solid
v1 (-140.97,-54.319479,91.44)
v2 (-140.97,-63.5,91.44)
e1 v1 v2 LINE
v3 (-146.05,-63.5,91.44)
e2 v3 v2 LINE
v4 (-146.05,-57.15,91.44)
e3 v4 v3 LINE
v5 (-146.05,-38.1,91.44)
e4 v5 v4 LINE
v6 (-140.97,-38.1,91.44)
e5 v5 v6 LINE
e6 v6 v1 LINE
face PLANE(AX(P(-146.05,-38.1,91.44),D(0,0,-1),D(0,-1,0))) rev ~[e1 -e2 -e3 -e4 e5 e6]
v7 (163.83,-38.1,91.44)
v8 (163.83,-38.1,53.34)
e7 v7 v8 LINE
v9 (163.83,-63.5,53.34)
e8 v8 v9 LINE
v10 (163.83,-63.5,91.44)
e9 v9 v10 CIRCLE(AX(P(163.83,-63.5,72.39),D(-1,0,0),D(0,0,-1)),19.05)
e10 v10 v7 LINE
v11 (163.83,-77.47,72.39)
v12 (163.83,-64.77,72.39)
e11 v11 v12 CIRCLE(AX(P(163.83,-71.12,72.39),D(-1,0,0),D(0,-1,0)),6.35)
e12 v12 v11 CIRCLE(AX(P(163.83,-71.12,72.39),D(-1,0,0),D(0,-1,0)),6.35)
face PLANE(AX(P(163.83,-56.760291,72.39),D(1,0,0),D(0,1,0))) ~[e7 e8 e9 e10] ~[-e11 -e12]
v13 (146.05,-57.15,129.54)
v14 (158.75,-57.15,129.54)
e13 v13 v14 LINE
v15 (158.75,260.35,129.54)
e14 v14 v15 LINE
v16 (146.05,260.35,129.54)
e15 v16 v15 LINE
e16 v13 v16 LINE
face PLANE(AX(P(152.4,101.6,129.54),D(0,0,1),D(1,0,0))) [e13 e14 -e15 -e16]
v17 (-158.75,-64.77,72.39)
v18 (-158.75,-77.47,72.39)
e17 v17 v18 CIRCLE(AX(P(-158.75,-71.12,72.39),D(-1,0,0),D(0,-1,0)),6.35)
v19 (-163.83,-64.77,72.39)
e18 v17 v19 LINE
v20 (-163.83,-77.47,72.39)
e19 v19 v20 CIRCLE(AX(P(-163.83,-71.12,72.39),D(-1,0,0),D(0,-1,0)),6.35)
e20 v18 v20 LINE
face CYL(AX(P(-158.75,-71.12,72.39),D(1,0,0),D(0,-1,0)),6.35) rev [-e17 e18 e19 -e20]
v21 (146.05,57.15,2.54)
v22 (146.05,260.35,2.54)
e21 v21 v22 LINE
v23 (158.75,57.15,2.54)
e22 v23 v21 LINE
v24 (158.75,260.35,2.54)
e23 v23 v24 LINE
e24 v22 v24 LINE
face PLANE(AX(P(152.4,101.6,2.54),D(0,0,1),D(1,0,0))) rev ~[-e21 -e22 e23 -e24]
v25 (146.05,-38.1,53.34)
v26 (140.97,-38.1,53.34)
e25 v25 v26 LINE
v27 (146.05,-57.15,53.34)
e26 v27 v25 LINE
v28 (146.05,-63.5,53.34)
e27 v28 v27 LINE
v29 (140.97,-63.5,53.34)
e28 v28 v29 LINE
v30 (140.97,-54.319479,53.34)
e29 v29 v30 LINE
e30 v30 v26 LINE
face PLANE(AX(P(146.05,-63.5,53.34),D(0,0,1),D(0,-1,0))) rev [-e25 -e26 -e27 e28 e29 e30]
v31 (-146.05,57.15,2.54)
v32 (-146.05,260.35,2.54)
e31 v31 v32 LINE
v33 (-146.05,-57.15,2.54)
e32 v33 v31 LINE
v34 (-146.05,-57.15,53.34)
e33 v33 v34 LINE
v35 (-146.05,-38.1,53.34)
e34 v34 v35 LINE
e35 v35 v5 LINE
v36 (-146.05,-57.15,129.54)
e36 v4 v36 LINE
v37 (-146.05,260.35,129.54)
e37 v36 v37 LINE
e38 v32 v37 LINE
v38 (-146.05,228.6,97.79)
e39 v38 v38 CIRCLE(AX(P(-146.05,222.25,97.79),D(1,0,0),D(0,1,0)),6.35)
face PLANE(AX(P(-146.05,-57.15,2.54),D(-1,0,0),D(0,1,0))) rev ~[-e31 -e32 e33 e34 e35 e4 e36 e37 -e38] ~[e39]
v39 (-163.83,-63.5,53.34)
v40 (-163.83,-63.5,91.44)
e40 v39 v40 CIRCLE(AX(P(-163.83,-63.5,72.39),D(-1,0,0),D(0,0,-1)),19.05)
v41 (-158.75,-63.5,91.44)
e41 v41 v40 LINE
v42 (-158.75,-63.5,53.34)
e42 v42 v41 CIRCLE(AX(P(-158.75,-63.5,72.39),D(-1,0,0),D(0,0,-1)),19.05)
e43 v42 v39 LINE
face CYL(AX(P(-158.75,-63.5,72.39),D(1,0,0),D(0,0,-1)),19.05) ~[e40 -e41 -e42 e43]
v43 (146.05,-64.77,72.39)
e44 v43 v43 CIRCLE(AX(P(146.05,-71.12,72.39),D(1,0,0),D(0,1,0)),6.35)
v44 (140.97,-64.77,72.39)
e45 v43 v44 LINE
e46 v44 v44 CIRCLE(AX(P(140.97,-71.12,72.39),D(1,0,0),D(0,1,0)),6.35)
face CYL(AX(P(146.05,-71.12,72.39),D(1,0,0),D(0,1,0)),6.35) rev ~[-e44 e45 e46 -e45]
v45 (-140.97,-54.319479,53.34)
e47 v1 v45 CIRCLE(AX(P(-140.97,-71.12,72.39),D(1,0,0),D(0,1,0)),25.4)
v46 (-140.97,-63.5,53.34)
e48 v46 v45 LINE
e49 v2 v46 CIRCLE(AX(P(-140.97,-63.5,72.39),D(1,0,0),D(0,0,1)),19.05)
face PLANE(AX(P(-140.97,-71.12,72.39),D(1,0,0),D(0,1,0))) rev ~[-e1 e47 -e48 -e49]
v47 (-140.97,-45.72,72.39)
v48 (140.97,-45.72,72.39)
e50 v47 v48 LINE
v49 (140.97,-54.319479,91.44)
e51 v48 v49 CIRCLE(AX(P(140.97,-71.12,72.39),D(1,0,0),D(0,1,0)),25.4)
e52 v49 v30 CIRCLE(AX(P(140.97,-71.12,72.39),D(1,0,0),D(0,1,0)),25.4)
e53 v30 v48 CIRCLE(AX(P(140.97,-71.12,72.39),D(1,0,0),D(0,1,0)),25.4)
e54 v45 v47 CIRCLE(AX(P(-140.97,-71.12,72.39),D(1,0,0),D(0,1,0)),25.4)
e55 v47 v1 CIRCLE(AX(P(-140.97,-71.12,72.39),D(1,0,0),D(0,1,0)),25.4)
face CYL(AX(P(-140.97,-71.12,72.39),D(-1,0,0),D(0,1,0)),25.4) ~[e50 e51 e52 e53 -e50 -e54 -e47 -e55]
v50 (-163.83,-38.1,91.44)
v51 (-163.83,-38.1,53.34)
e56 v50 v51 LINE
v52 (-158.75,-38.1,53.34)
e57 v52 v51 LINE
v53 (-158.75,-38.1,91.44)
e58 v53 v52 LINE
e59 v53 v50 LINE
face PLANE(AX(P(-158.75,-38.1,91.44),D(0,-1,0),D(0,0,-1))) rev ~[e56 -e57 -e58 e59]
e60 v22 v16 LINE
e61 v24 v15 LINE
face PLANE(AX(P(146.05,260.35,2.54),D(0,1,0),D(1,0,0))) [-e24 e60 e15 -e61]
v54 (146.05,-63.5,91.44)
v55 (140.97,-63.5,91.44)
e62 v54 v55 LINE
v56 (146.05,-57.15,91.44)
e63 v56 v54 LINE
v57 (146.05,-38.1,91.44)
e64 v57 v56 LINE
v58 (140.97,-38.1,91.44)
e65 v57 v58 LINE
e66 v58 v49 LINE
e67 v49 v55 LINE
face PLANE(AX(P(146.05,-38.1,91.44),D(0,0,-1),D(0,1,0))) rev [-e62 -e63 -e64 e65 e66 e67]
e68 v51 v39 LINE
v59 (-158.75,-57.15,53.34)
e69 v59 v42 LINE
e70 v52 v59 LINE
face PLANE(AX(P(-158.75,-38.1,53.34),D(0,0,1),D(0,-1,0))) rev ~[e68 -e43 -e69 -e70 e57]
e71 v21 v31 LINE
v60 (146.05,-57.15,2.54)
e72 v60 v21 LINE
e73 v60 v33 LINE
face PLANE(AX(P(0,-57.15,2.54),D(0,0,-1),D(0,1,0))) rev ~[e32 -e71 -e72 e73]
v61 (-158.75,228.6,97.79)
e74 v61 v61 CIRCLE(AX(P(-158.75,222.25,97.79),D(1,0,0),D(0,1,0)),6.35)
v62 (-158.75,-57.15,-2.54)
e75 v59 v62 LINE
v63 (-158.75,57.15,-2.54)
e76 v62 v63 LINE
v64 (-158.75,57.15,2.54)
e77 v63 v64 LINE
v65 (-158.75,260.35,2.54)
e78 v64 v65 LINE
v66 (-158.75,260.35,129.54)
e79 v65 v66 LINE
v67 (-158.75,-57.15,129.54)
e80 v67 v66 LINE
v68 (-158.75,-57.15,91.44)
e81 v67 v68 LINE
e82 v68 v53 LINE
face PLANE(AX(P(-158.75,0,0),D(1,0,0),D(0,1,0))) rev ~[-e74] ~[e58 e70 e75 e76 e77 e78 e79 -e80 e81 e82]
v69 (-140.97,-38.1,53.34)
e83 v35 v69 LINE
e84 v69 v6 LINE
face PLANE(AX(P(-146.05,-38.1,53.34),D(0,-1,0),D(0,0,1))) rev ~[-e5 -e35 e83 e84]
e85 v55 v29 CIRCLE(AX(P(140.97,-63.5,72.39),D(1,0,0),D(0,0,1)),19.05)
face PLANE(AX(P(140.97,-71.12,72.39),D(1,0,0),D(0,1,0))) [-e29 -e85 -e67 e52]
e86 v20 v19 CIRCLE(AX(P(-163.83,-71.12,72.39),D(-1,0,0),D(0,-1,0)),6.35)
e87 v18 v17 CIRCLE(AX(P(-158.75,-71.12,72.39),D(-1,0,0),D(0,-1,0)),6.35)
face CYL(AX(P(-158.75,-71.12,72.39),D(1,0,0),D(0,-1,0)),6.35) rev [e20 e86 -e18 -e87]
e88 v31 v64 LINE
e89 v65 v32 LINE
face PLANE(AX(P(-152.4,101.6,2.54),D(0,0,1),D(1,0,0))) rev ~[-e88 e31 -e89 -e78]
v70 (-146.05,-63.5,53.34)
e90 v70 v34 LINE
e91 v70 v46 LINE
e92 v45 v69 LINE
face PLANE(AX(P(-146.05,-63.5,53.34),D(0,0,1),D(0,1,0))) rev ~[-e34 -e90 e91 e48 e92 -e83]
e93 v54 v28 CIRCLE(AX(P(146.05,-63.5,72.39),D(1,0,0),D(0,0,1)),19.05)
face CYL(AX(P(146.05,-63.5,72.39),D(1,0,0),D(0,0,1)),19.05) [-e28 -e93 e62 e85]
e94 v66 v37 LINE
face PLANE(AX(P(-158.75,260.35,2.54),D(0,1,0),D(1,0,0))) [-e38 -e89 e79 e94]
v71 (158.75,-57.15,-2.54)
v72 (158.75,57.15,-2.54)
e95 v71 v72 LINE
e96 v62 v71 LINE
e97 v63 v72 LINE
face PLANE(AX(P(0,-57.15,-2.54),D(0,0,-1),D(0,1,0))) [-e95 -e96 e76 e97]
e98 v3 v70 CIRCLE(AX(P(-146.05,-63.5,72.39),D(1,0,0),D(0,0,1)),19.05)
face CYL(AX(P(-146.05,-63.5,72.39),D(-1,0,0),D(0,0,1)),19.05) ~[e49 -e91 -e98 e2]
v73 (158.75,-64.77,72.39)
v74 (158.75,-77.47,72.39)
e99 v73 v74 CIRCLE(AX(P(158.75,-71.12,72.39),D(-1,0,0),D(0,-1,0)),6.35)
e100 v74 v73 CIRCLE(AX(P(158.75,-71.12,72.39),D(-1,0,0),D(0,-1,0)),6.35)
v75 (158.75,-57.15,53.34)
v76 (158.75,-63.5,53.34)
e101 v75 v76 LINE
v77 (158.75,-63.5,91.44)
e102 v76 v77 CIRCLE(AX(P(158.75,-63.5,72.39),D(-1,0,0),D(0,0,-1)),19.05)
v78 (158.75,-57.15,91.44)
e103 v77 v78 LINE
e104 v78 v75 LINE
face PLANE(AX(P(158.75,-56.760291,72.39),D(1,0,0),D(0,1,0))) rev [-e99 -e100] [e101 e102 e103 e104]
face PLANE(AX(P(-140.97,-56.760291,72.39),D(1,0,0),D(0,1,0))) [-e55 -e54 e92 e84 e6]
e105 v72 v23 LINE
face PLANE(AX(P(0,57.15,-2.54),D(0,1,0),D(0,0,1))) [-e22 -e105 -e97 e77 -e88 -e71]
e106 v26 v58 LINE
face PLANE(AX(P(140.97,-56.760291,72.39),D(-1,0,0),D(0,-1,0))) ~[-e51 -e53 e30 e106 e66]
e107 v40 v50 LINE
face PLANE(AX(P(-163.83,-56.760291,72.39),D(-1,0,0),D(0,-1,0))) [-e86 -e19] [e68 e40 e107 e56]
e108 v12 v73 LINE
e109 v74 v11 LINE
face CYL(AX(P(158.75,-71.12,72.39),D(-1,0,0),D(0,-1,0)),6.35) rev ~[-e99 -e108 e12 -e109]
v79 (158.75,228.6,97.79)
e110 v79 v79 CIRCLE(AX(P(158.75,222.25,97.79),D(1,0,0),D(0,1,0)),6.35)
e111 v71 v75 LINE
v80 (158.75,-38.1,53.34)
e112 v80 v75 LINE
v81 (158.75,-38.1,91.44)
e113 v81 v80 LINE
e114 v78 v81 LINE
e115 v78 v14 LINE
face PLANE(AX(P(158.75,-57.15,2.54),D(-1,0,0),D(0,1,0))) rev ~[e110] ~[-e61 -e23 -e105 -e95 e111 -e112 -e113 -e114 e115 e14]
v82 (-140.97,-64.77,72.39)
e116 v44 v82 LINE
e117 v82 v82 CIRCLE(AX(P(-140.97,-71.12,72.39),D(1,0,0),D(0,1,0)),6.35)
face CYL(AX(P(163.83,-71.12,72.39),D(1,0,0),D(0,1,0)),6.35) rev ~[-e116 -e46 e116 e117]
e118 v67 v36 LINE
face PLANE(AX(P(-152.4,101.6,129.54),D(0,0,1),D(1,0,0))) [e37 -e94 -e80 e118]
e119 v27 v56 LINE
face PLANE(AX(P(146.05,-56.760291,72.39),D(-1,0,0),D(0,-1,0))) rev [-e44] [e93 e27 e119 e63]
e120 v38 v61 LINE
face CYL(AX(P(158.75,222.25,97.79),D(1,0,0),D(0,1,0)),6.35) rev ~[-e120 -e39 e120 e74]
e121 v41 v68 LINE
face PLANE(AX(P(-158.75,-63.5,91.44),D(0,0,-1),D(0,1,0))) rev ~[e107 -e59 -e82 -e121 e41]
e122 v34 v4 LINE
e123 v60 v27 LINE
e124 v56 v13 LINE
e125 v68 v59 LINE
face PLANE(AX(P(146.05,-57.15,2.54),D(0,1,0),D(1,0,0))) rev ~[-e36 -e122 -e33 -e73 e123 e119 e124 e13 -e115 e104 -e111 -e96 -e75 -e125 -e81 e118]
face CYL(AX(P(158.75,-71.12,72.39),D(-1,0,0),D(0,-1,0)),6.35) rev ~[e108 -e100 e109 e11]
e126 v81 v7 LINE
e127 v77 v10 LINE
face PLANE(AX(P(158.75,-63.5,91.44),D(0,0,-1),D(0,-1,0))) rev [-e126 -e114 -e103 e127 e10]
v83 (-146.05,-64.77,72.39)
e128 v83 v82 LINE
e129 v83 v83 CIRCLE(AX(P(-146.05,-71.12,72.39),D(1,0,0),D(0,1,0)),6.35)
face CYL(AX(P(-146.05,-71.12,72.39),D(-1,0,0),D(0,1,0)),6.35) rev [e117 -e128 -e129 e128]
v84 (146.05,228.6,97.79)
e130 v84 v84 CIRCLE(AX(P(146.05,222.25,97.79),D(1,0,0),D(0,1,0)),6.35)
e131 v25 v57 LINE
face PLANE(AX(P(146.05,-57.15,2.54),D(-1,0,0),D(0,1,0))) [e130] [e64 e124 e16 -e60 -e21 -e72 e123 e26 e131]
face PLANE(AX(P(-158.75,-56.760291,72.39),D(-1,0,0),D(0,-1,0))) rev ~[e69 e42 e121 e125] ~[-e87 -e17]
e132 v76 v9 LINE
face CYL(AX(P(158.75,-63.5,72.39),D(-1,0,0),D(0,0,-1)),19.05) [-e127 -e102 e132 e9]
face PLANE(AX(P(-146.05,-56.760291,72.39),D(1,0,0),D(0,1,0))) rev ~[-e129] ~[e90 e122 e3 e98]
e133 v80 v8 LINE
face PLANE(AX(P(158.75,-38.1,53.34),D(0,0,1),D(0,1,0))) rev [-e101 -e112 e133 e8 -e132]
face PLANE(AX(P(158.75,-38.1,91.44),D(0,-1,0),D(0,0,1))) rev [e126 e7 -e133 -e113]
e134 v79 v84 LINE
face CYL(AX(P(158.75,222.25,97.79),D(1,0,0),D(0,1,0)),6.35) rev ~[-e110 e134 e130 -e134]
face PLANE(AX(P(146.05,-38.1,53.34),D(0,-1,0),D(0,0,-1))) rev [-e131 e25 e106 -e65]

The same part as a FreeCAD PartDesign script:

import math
import FreeCAD as App
import Part
import Sketcher
from FreeCAD import Vector
Q = App.Units.Quantity


def add_polygon(sketch, points):
    """Adds a closed chain of lines whose ends are joined by coincident constraints."""
    first, n = sketch.GeometryCount, len(points)
    for a, b in zip(points, points[1:] + points[:1]):
        sketch.addGeometry(Part.LineSegment(App.Vector(*a, 0), App.Vector(*b, 0)), False)
    for i in range(n):
        sketch.addConstraint(Sketcher.Constraint("Coincident", first + i, 2, first + (i + 1) % n, 1))

doc = App.newDocument("Part")
body = doc.addObject("PartDesign::Body", "Body")

# Sketch on YZ plane
sketch1 = doc.addObject("Sketcher::SketchObject", "Sketch")
body.addObject(sketch1)
sketch1.AttachmentSupport = (doc.YZ_Plane, [""])
sketch1.MapMode = "FlatFace"
add_polygon(sketch1, [(-57, 3), (-57, -3), (57, -3), (57, 3)])  # lines 0-3
sketch1.addConstraint([
    Sketcher.Constraint("Vertical", 0),
    Sketcher.Constraint("Horizontal", 1),
    Sketcher.Constraint("Vertical", 2),
    Sketcher.Constraint("Horizontal", 3),
    Sketcher.Constraint("Symmetric", 0, 2, 2, 2, -1, 1),
    Sketcher.Constraint("DistanceX", 1, 1, 1, 2, Q("4.5 in")),
    Sketcher.Constraint("DistanceY", 0, 2, 0, 1, Q("0.2 in")),
])
pad1 = doc.addObject("PartDesign::Pad", "Pad")
body.addObject(pad1)
pad1.Profile = sketch1
pad1.Length = Q("12.5 in")
pad1.Midplane = True

# Sketch on XY plane
sketch2 = doc.addObject("Sketcher::SketchObject", "Sketch001")
body.addObject(sketch2)
sketch2.AttachmentSupport = (doc.XY_Plane, [""])
sketch2.MapMode = "FlatFace"
sketch2.AttachmentOffset = App.Placement(Vector(0, 0, 0.1 * 25.4), App.Rotation())
add_polygon(sketch2, [(146, 260), (146, -57), (159, -57), (159, 260)])  # lines 0-3
add_polygon(sketch2, [(-159, 260), (-159, -57), (-146, -57), (-146, 260)])  # lines 4-7
sketch2.addConstraint([
    Sketcher.Constraint("Vertical", 0),
    Sketcher.Constraint("Horizontal", 1),
    Sketcher.Constraint("Vertical", 2),
    Sketcher.Constraint("Horizontal", 3),
    Sketcher.Constraint("Vertical", 4),
    Sketcher.Constraint("Horizontal", 5),
    Sketcher.Constraint("Vertical", 6),
    Sketcher.Constraint("Horizontal", 7),
    Sketcher.Constraint("Symmetric", 1, 2, 4, 2, -2),
    Sketcher.Constraint("Symmetric", 3, 2, 6, 2, -2),
    Sketcher.Constraint("DistanceX", 1, 1, 1, 2, Q("0.5 in")),
    Sketcher.Constraint("DistanceY", 0, 2, 0, 1, Q("12.5 in")),
    Sketcher.Constraint("DistanceX", 4, 2, 0, 2, Q("12 in")),
    Sketcher.Constraint("DistanceY", 0, 2, -1, 1, Q("2.25 in")),
])
pad2 = doc.addObject("PartDesign::Pad", "Pad001")
body.addObject(pad2)
pad2.Profile = sketch2
pad2.Length = Q("5 in")

# Sketch on YZ plane
sketch3 = doc.addObject("Sketcher::SketchObject", "Sketch002")
body.addObject(sketch3)
sketch3.AttachmentSupport = (doc.YZ_Plane, [""])
sketch3.MapMode = "FlatFace"
sketch3.AttachmentOffset = App.Placement(Vector(0, 0, -5.75 * 25.4), App.Rotation())
sketch3.addGeometry([
    Part.LineSegment(Vector(-38, 91, 0), Vector(-64, 91, 0)),  # 0
    Part.ArcOfCircle(Part.Circle(Vector(-64, 72, 0), Vector(0, 0, 1), 19), math.radians(90), math.radians(270)),  # 1
    Part.LineSegment(Vector(-64, 53, 0), Vector(-38, 53, 0)),  # 2
    Part.LineSegment(Vector(-38, 53, 0), Vector(-38, 91, 0)),  # 3
    Part.Circle(Vector(-71, 72, 0), Vector(0, 0, 1), 6),  # 4
], False)
sketch3.addConstraint([
    Sketcher.Constraint("Tangent", 0, 2, 1, 1),
    Sketcher.Constraint("Tangent", 1, 2, 2, 1),
    Sketcher.Constraint("Coincident", 2, 2, 3, 1),
    Sketcher.Constraint("Coincident", 3, 2, 0, 1),
    Sketcher.Constraint("Horizontal", 0),
    Sketcher.Constraint("Horizontal", 2),
    Sketcher.Constraint("Vertical", 3),
    Sketcher.Constraint("Horizontal", 1, 3, 4, 3),
    Sketcher.Constraint("Diameter", 4, Q("0.5 in")),
    Sketcher.Constraint("DistanceX", 0, 2, 0, 1, Q("1 in")),
    Sketcher.Constraint("Radius", 1, Q("0.75 in")),
    Sketcher.Constraint("DistanceX", 1, 3, -1, 1, Q("2.5 in")),
    Sketcher.Constraint("DistanceX", 4, 3, -1, 1, Q("2.8 in")),
    Sketcher.Constraint("DistanceY", -1, 1, 0, 2, Q("3.6 in")),
])
pad3 = doc.addObject("PartDesign::Pad", "Pad002")
body.addObject(pad3)
pad3.Profile = sketch3
pad3.Length = Q("0.2 in")

# Sketch on YZ plane
sketch4 = doc.addObject("Sketcher::SketchObject", "Sketch003")
body.addObject(sketch4)
sketch4.AttachmentSupport = (doc.YZ_Plane, [""])
sketch4.MapMode = "FlatFace"
sketch4.AttachmentOffset = App.Placement(Vector(0, 0, -6.25 * 25.4), App.Rotation())
sketch4.addGeometry([
    Part.LineSegment(Vector(-64, 91, 0), Vector(-38, 91, 0)),  # 0
    Part.LineSegment(Vector(-38, 91, 0), Vector(-38, 53, 0)),  # 1
    Part.LineSegment(Vector(-38, 53, 0), Vector(-64, 53, 0)),  # 2
    Part.ArcOfCircle(Part.Circle(Vector(-64, 72, 0), Vector(0, 0, 1), 19), math.radians(90), math.radians(270)),  # 3
    Part.Circle(Vector(-71, 72, 0), Vector(0, 0, 1), 6),  # 4
], False)
sketch4.addConstraint([
    Sketcher.Constraint("Coincident", 0, 2, 1, 1),
    Sketcher.Constraint("Coincident", 1, 2, 2, 1),
    Sketcher.Constraint("Tangent", 2, 2, 3, 2),
    Sketcher.Constraint("Tangent", 3, 1, 0, 1),
    Sketcher.Constraint("Horizontal", 0),
    Sketcher.Constraint("Vertical", 1),
    Sketcher.Constraint("Horizontal", 2),
    Sketcher.Constraint("Horizontal", 3, 3, 4, 3),
    Sketcher.Constraint("Diameter", 4, Q("0.5 in")),
    Sketcher.Constraint("DistanceX", 0, 1, 0, 2, Q("1 in")),
    Sketcher.Constraint("Radius", 3, Q("0.75 in")),
    Sketcher.Constraint("DistanceX", 3, 3, -1, 1, Q("2.5 in")),
    Sketcher.Constraint("DistanceX", 4, 3, -1, 1, Q("2.8 in")),
    Sketcher.Constraint("DistanceY", -1, 1, 0, 2, Q("3.6 in")),
])
pad4 = doc.addObject("PartDesign::Pad", "Pad003")
body.addObject(pad4)
pad4.Profile = sketch4
pad4.Length = Q("0.2 in")
pad4.Reversed = True
body2 = doc.addObject("PartDesign::Body", "Body001")
doc.recompute()

body2.BaseFeature = body
doc.recompute()

mirroring = doc.addObject("Part::Mirroring", "Mirroring")
mirroring.Source = body
mirroring.Base = Vector(0, 0, 0)
mirroring.Normal = Vector(1, 0, 0)
body3 = doc.addObject("PartDesign::Body", "Body002")
body3.BaseFeature = mirroring
boolean = doc.addObject("PartDesign::Boolean", "Boolean")
body2.addObject(boolean)
boolean.Type = "Fuse"
boolean.addObjects([body3])
doc.recompute()

# Sketch on YZ plane
sketch5 = doc.addObject("Sketcher::SketchObject", "Sketch004")
body2.addObject(sketch5)
sketch5.AttachmentSupport = (doc.getObject("YZ_Plane001"), [""])
sketch5.MapMode = "FlatFace"
sketch5.AttachmentOffset = App.Placement(Vector(0, 0, -5.55 * 25.4), App.Rotation())
sketch5.addGeometry(Part.Circle(Vector(-71, 72, 0), Vector(0, 0, 1), 25), False)
sketch5.addConstraint([
    Sketcher.Constraint("Diameter", 0, Q("2 in")),
    Sketcher.Constraint("DistanceX", 0, 3, -1, 1, Q("2.8 in")),
    Sketcher.Constraint("DistanceY", -1, 1, 0, 3, Q("2.85 in")),
])
pad5 = doc.addObject("PartDesign::Pad", "Pad004")
body2.addObject(pad5)
pad5.Profile = sketch5
pad5.Length = Q("11.1 in")

# Sketch on YZ plane
sketch6 = doc.addObject("Sketcher::SketchObject", "Sketch005")
body2.addObject(sketch6)
sketch6.AttachmentSupport = (doc.getObject("YZ_Plane001"), [""])
sketch6.MapMode = "FlatFace"
sketch6.AttachmentOffset = App.Placement(Vector(0, 0, 6.45 * 25.4), App.Rotation())
sketch6.addGeometry(Part.Circle(Vector(-71, 72, 0), Vector(0, 0, 1), 6), False)
sketch6.addConstraint([
    Sketcher.Constraint("Diameter", 0, Q("0.5 in")),
    Sketcher.Constraint("DistanceX", 0, 3, -1, 1, Q("2.8 in")),
    Sketcher.Constraint("DistanceY", -1, 1, 0, 3, Q("2.85 in")),
])
pocket1 = doc.addObject("PartDesign::Pocket", "Pocket")
body2.addObject(pocket1)
pocket1.Profile = sketch6
pocket1.Length = Q("12.9 in")

# Sketch on YZ plane
sketch7 = doc.addObject("Sketcher::SketchObject", "Sketch006")
body2.addObject(sketch7)
sketch7.AttachmentSupport = (doc.getObject("YZ_Plane001"), [""])
sketch7.MapMode = "FlatFace"
sketch7.AttachmentOffset = App.Placement(Vector(0, 0, 6.25 * 25.4), App.Rotation())
sketch7.addGeometry(Part.Circle(Vector(222, 98, 0), Vector(0, 0, 1), 6), False)
sketch7.addConstraint([
    Sketcher.Constraint("Diameter", 0, Q("0.5 in")),
    Sketcher.Constraint("DistanceX", -1, 1, 0, 3, Q("8.75 in")),
    Sketcher.Constraint("DistanceY", -1, 1, 0, 3, Q("3.85 in")),
])
pocket2 = doc.addObject("PartDesign::Pocket", "Pocket001")
body2.addObject(pocket2)
pocket2.Profile = sketch7
pocket2.Type = "ThroughAll"
mirroring.Visibility = False

doc.recompute()
